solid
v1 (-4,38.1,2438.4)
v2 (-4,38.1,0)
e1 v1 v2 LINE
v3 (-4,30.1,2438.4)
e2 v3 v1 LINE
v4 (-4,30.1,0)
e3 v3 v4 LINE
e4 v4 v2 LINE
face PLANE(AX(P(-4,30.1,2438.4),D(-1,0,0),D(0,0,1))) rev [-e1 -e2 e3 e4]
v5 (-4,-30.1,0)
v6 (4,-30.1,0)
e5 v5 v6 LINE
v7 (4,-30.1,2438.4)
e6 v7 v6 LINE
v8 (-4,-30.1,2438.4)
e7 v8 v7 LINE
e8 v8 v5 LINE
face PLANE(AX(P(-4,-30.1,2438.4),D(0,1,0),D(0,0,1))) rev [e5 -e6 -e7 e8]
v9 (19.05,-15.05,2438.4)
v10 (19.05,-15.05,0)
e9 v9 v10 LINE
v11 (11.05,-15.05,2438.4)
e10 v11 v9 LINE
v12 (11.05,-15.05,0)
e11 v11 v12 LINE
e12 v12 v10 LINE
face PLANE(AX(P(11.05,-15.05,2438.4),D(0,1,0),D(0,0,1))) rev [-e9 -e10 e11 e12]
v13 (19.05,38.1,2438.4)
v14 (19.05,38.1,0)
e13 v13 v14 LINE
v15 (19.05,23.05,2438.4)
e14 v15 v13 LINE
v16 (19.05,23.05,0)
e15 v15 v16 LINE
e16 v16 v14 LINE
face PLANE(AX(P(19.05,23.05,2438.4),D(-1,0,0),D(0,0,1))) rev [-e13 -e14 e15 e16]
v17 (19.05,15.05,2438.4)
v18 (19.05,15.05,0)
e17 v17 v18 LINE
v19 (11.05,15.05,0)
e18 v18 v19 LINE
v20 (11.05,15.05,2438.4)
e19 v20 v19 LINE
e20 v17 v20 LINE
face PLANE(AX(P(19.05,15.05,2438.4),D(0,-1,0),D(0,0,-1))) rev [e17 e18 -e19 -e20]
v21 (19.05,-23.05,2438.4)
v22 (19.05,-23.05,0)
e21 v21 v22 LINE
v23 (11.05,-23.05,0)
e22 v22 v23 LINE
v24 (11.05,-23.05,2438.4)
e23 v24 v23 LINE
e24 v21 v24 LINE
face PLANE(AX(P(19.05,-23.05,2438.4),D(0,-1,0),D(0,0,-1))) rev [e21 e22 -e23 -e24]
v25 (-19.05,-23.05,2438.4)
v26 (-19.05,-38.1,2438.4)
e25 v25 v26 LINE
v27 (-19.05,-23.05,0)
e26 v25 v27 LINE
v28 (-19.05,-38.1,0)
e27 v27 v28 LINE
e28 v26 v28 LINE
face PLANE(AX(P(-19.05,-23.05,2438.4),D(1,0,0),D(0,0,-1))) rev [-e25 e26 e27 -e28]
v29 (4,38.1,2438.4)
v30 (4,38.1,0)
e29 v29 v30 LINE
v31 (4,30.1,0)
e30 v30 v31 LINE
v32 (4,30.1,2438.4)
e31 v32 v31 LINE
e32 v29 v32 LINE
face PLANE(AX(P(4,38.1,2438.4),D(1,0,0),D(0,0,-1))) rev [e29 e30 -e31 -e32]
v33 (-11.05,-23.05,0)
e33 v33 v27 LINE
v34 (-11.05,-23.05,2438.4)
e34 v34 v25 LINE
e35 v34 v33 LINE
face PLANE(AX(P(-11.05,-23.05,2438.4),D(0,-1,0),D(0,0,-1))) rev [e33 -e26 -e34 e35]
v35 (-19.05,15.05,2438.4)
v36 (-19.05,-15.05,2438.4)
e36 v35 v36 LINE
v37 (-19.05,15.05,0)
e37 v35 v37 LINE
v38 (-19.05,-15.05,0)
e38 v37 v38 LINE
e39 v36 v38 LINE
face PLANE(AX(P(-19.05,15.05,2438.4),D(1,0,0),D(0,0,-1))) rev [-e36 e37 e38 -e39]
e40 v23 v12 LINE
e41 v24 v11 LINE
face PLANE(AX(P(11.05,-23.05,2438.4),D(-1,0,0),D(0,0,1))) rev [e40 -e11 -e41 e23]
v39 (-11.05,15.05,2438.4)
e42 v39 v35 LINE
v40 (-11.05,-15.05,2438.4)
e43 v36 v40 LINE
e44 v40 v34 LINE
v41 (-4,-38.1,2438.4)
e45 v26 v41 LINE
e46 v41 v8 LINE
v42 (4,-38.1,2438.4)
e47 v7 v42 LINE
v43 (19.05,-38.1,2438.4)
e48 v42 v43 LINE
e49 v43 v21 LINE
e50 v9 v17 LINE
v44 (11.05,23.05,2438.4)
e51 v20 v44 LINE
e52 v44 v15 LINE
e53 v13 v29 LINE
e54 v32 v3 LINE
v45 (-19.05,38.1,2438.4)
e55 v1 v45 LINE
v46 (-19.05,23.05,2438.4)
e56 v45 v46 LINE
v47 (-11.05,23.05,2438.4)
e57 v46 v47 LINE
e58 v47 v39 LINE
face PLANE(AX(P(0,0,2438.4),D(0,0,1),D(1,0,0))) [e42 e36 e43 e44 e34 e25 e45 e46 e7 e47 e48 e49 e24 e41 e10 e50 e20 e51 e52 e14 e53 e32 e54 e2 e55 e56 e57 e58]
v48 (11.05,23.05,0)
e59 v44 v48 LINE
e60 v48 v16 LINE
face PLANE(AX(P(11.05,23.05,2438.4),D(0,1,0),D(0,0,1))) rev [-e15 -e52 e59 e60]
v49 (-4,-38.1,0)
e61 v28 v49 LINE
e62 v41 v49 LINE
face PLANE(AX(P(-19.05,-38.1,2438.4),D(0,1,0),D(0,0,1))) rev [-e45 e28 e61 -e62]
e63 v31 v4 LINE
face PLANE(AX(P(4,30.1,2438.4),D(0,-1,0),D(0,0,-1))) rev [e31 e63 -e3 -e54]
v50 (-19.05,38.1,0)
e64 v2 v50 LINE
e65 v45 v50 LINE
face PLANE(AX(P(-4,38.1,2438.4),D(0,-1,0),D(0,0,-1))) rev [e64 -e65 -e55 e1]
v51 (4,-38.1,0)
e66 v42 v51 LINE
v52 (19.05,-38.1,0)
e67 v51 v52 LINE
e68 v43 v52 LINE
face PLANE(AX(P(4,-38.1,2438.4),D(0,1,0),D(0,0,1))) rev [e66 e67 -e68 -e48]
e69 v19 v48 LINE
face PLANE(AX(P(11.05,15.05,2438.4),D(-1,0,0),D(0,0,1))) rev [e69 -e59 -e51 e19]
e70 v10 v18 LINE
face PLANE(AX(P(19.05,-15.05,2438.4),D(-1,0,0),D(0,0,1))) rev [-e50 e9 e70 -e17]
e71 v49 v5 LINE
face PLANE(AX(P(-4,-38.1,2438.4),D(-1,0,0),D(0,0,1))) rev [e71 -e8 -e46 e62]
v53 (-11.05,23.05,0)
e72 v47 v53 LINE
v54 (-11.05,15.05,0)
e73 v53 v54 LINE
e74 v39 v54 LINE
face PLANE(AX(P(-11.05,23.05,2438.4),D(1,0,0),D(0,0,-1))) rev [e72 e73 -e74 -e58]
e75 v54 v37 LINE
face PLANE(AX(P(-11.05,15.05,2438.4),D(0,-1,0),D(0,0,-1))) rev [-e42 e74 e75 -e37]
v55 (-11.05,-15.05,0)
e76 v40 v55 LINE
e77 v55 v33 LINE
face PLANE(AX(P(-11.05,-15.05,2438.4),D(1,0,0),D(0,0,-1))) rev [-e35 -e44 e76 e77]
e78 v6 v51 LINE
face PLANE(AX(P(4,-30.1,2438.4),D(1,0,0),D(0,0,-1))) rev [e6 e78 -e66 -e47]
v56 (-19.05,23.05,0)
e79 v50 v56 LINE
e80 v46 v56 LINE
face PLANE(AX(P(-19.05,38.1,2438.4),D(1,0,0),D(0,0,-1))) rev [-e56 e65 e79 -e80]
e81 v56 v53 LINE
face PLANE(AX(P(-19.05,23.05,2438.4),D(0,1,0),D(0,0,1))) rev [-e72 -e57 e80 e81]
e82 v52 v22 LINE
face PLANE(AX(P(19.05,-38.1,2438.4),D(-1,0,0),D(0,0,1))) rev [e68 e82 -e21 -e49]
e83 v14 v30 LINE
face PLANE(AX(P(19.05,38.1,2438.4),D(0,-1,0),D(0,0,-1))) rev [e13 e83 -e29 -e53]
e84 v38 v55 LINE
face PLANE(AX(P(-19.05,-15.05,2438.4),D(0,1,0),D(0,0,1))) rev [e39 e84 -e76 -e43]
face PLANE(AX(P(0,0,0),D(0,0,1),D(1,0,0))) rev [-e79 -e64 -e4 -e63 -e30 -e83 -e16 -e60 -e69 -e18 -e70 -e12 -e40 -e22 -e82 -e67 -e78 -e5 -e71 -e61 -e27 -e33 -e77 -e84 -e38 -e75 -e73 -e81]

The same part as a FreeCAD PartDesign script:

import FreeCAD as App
import Part
import Sketcher
Q = App.Units.Quantity

doc = App.newDocument("Part")
params = doc.addObject("Spreadsheet::Sheet", "Params")
for row, (alias, value) in enumerate([
    ("sketch1_width", "8 mm"),
    ("sketch1_height", "30.1 mm"),
    ("sketch1_width2", "15.05 mm"),
    ("pad1_length", "2438.4 mm"),
], start=1):
    params.set(f"A{row}", alias)
    params.set(f"B{row}", "=" + value)
    params.setAlias(f"B{row}", alias)

body = doc.addObject("PartDesign::Body", "Body")

# Sketch on XY plane
sketch1 = doc.addObject("Sketcher::SketchObject", "Sketch")
body.addObject(sketch1)
sketch1.AttachmentSupport = (doc.XY_Plane, [""])
sketch1.MapMode = "FlatFace"
sketch1.addGeometry([
    Part.LineSegment(App.Vector(-19, -38, 0), App.Vector(-4, -38, 0)),  # 0
    Part.LineSegment(App.Vector(-4, -38, 0), App.Vector(-4, -30, 0)),  # 1
    Part.LineSegment(App.Vector(-4, -30, 0), App.Vector(4, -30, 0)),  # 2
    Part.LineSegment(App.Vector(4, -30, 0), App.Vector(4, -38, 0)),  # 3
    Part.LineSegment(App.Vector(4, -38, 0), App.Vector(19, -38, 0)),  # 4
    Part.LineSegment(App.Vector(19, -38, 0), App.Vector(19, -23, 0)),  # 5
    Part.LineSegment(App.Vector(19, -23, 0), App.Vector(11, -23, 0)),  # 6
    Part.LineSegment(App.Vector(11, -23, 0), App.Vector(11, -15, 0)),  # 7
    Part.LineSegment(App.Vector(11, -15, 0), App.Vector(19, -15, 0)),  # 8
    Part.LineSegment(App.Vector(19, -15, 0), App.Vector(19, 15, 0)),  # 9
    Part.LineSegment(App.Vector(19, 15, 0), App.Vector(11, 15, 0)),  # 10
    Part.LineSegment(App.Vector(11, 15, 0), App.Vector(11, 23, 0)),  # 11
    Part.LineSegment(App.Vector(11, 23, 0), App.Vector(19, 23, 0)),  # 12
    Part.LineSegment(App.Vector(19, 23, 0), App.Vector(19, 38, 0)),  # 13
    Part.LineSegment(App.Vector(19, 38, 0), App.Vector(4, 38, 0)),  # 14
    Part.LineSegment(App.Vector(4, 38, 0), App.Vector(4, 30, 0)),  # 15
    Part.LineSegment(App.Vector(4, 30, 0), App.Vector(-4, 30, 0)),  # 16
    Part.LineSegment(App.Vector(-4, 30, 0), App.Vector(-4, 38, 0)),  # 17
    Part.LineSegment(App.Vector(-4, 38, 0), App.Vector(-19, 38, 0)),  # 18
    Part.LineSegment(App.Vector(-19, 38, 0), App.Vector(-19, 23, 0)),  # 19
    Part.LineSegment(App.Vector(-19, 23, 0), App.Vector(-11, 23, 0)),  # 20
    Part.LineSegment(App.Vector(-11, 23, 0), App.Vector(-11, 15, 0)),  # 21
    Part.LineSegment(App.Vector(-11, 15, 0), App.Vector(-19, 15, 0)),  # 22
    Part.LineSegment(App.Vector(-19, 15, 0), App.Vector(-19, -15, 0)),  # 23
    Part.LineSegment(App.Vector(-19, -15, 0), App.Vector(-11, -15, 0)),  # 24
    Part.LineSegment(App.Vector(-11, -15, 0), App.Vector(-11, -23, 0)),  # 25
    Part.LineSegment(App.Vector(-11, -23, 0), App.Vector(-19, -23, 0)),  # 26
    Part.LineSegment(App.Vector(-19, -23, 0), App.Vector(-19, -38, 0)),  # 27
], False)
sketch1.addConstraint([
    Sketcher.Constraint("Coincident", 0, 2, 1, 1),
    Sketcher.Constraint("Coincident", 1, 2, 2, 1),
    Sketcher.Constraint("Coincident", 2, 2, 3, 1),
    Sketcher.Constraint("Coincident", 3, 2, 4, 1),
    Sketcher.Constraint("Coincident", 4, 2, 5, 1),
    Sketcher.Constraint("Coincident", 5, 2, 6, 1),
    Sketcher.Constraint("Coincident", 6, 2, 7, 1),
    Sketcher.Constraint("Coincident", 7, 2, 8, 1),
    Sketcher.Constraint("Coincident", 8, 2, 9, 1),
    Sketcher.Constraint("Coincident", 9, 2, 10, 1),
    Sketcher.Constraint("Coincident", 10, 2, 11, 1),
    Sketcher.Constraint("Coincident", 11, 2, 12, 1),
    Sketcher.Constraint("Coincident", 12, 2, 13, 1),
    Sketcher.Constraint("Coincident", 13, 2, 14, 1),
    Sketcher.Constraint("Coincident", 14, 2, 15, 1),
    Sketcher.Constraint("Coincident", 15, 2, 16, 1),
    Sketcher.Constraint("Coincident", 16, 2, 17, 1),
    Sketcher.Constraint("Coincident", 17, 2, 18, 1),
    Sketcher.Constraint("Coincident", 18, 2, 19, 1),
    Sketcher.Constraint("Coincident", 19, 2, 20, 1),
    Sketcher.Constraint("Coincident", 20, 2, 21, 1),
    Sketcher.Constraint("Coincident", 21, 2, 22, 1),
    Sketcher.Constraint("Coincident", 22, 2, 23, 1),
    Sketcher.Constraint("Coincident", 23, 2, 24, 1),
    Sketcher.Constraint("Coincident", 24, 2, 25, 1),
    Sketcher.Constraint("Coincident", 25, 2, 26, 1),
    Sketcher.Constraint("Coincident", 26, 2, 27, 1),
    Sketcher.Constraint("Coincident", 27, 2, 0, 1),
    Sketcher.Constraint("Horizontal", 0),
    Sketcher.Constraint("Vertical", 1),
    Sketcher.Constraint("Horizontal", 2),
    Sketcher.Constraint("Vertical", 3),
    Sketcher.Constraint("Horizontal", 4),
    Sketcher.Constraint("Vertical", 5),
    Sketcher.Constraint("Horizontal", 6),
    Sketcher.Constraint("Vertical", 7),
    Sketcher.Constraint("Horizontal", 8),
    Sketcher.Constraint("Vertical", 9),
    Sketcher.Constraint("Horizontal", 10),
    Sketcher.Constraint("Vertical", 11),
    Sketcher.Constraint("Horizontal", 12),
    Sketcher.Constraint("Vertical", 13),
    Sketcher.Constraint("Horizontal", 14),
    Sketcher.Constraint("Vertical", 15),
    Sketcher.Constraint("Horizontal", 16),
    Sketcher.Constraint("Vertical", 17),
    Sketcher.Constraint("Horizontal", 18),
    Sketcher.Constraint("Vertical", 19),
    Sketcher.Constraint("Horizontal", 20),
    Sketcher.Constraint("Vertical", 21),
    Sketcher.Constraint("Horizontal", 22),
    Sketcher.Constraint("Vertical", 23),
    Sketcher.Constraint("Horizontal", 24),
    Sketcher.Constraint("Vertical", 25),
    Sketcher.Constraint("Horizontal", 26),
    Sketcher.Constraint("Vertical", 27),
    Sketcher.Constraint("Symmetric", 0, 2, 14, 2, -1, 1),
    Sketcher.Constraint("Symmetric", 2, 2, 16, 2, -1, 1),
    Sketcher.Constraint("Symmetric", 4, 2, 18, 2, -1, 1),
    Sketcher.Constraint("Symmetric", 6, 2, 20, 2, -1, 1),
    Sketcher.Constraint("Symmetric", 8, 2, 22, 2, -1, 1),
    Sketcher.Constraint("Symmetric", 10, 2, 24, 2, -1, 1),
    Sketcher.Constraint("Symmetric", 12, 2, 26, 2, -1, 1),
    Sketcher.Constraint("Symmetric", 0, 2, 3, 2, -2),
    Sketcher.Constraint("Symmetric", 12, 2, 19, 2, -2),
    Sketcher.Constraint("Symmetric", 10, 2, 21, 2, -2),
    Sketcher.Constraint("Vertical", 5, 2, 8, 2),
    Sketcher.Constraint("Equal", 2, 6),
    Sketcher.Constraint("Equal", 26, 1),
    Sketcher.Constraint("Equal", 18, 5),
    Sketcher.Constraint("Equal", 3, 7),
    Sketcher.Constraint("DistanceX", 2, 1, 2, 2, Q("8 mm")),
    Sketcher.Constraint("DistanceY", 9, 1, 9, 2, Q("30.1 mm")),
    Sketcher.Constraint("DistanceX", 0, 1, 0, 2, Q("15.05 mm")),
])
sketch1.setExpression("Constraints[71]", "Params.sketch1_width")
sketch1.setExpression("Constraints[72]", "Params.sketch1_height")
sketch1.setExpression("Constraints[73]", "Params.sketch1_width2")
pad1 = doc.addObject("PartDesign::Pad", "Pad")
body.addObject(pad1)
pad1.Profile = sketch1
pad1.setExpression("Length", "Params.pad1_length")

doc.recompute()
